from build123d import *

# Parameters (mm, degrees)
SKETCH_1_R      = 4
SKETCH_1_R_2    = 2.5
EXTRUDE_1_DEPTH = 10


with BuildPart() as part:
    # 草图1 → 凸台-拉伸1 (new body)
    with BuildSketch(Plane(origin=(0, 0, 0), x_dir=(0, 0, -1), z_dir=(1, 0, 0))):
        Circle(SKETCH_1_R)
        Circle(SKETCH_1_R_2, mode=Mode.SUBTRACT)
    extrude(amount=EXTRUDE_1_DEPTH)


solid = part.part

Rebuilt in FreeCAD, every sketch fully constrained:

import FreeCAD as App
import Part
import Sketcher

V = App.Vector
Q = App.Units.Quantity

doc = App.newDocument("Part")
params = doc.addObject("Spreadsheet::Sheet", "Params")
for row, (alias, value) in enumerate([
    ("sketch1_diameter", "8 mm"),
    ("sketch1_diameter2", "5 mm"),
    ("pad1_length", "10 mm"),
], start=1):
    params.set(f"A{row}", alias)
    params.set(f"B{row}", "=" + value)
    params.setAlias(f"B{row}", alias)

body = doc.addObject("PartDesign::Body", "Body")

# Sketch on YZ plane
sketch1 = doc.addObject("Sketcher::SketchObject", "Sketch")
body.addObject(sketch1)
sketch1.AttachmentSupport = (doc.YZ_Plane, [""])
sketch1.MapMode = "FlatFace"
sketch1.addGeometry([
    Part.Circle(V(0, 0, 0), V(0, 0, 1), 4),
    Part.Circle(V(0, 0, 0), V(0, 0, 1), 2.5),
], False)
sketch1.addConstraint([
    Sketcher.Constraint("Coincident", 0, 3, -1, 1),
    Sketcher.Constraint("Coincident", 1, 3, -1, 1),
    Sketcher.Constraint("Diameter", 0, Q("8 mm")),
    Sketcher.Constraint("Diameter", 1, Q("5 mm")),
])
sketch1.setExpression("Constraints[2]", "Params.sketch1_diameter")
sketch1.setExpression("Constraints[3]", "Params.sketch1_diameter2")
pad1 = doc.addObject("PartDesign::Pad", "Pad")
body.addObject(pad1)
pad1.Profile = sketch1
pad1.setExpression("Length", "Params.pad1_length")

doc.recompute()
